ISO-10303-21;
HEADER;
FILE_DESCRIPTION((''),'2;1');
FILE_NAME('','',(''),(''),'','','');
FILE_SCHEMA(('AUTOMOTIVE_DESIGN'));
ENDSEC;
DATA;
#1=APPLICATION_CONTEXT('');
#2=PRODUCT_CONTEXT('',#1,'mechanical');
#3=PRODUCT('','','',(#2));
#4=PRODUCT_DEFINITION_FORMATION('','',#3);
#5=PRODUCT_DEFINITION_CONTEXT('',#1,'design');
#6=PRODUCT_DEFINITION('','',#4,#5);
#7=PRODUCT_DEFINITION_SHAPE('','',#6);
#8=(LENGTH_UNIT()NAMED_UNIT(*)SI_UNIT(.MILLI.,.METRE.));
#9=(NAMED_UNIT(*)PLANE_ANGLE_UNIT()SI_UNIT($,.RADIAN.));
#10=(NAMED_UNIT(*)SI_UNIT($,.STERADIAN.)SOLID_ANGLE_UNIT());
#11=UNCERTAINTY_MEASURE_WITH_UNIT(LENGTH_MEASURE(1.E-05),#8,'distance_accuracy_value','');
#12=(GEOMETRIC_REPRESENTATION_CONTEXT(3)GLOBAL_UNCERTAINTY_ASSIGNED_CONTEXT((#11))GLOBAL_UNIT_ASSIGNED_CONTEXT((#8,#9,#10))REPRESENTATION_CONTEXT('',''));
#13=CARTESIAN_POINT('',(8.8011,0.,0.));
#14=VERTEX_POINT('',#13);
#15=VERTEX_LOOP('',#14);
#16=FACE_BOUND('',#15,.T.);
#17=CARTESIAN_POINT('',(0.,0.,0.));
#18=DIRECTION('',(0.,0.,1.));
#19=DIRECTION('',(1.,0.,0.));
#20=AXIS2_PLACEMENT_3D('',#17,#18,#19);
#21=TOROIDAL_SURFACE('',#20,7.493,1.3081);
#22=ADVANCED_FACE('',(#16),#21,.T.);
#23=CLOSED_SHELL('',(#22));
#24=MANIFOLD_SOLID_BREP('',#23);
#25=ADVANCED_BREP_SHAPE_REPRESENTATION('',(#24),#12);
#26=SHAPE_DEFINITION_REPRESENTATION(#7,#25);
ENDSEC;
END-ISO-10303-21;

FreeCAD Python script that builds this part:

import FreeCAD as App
import Part
import Sketcher
from FreeCAD import Vector
Q = App.Units.Quantity

doc = App.newDocument("Part")
body = doc.addObject("PartDesign::Body", "Body")

# Sketch on YZ plane
sketch1 = body.newObject("Sketcher::SketchObject", "Sketch")
sketch1.AttachmentSupport = (doc.getObject("YZ_Plane"), [""])
sketch1.MapMode = "FlatFace"
sketch1.addGeometry(Part.Circle(Vector(-7.5, 0, 0), Vector(0, 0, 1), 1.3), False)
sketch1.addConstraint([
    Sketcher.Constraint("PointOnObject", 0, 3, -1),
    Sketcher.Constraint("Diameter", 0, Q("0.103 in")),
    Sketcher.Constraint("DistanceX", 0, 3, -1, 1, Q("0.295 in")),
])
revolution = body.newObject("PartDesign::Revolution", "Revolution")
revolution.Profile = sketch1
revolution.ReferenceAxis = (sketch1, ["V_Axis"])
revolution.Angle = 360

doc.recompute()
